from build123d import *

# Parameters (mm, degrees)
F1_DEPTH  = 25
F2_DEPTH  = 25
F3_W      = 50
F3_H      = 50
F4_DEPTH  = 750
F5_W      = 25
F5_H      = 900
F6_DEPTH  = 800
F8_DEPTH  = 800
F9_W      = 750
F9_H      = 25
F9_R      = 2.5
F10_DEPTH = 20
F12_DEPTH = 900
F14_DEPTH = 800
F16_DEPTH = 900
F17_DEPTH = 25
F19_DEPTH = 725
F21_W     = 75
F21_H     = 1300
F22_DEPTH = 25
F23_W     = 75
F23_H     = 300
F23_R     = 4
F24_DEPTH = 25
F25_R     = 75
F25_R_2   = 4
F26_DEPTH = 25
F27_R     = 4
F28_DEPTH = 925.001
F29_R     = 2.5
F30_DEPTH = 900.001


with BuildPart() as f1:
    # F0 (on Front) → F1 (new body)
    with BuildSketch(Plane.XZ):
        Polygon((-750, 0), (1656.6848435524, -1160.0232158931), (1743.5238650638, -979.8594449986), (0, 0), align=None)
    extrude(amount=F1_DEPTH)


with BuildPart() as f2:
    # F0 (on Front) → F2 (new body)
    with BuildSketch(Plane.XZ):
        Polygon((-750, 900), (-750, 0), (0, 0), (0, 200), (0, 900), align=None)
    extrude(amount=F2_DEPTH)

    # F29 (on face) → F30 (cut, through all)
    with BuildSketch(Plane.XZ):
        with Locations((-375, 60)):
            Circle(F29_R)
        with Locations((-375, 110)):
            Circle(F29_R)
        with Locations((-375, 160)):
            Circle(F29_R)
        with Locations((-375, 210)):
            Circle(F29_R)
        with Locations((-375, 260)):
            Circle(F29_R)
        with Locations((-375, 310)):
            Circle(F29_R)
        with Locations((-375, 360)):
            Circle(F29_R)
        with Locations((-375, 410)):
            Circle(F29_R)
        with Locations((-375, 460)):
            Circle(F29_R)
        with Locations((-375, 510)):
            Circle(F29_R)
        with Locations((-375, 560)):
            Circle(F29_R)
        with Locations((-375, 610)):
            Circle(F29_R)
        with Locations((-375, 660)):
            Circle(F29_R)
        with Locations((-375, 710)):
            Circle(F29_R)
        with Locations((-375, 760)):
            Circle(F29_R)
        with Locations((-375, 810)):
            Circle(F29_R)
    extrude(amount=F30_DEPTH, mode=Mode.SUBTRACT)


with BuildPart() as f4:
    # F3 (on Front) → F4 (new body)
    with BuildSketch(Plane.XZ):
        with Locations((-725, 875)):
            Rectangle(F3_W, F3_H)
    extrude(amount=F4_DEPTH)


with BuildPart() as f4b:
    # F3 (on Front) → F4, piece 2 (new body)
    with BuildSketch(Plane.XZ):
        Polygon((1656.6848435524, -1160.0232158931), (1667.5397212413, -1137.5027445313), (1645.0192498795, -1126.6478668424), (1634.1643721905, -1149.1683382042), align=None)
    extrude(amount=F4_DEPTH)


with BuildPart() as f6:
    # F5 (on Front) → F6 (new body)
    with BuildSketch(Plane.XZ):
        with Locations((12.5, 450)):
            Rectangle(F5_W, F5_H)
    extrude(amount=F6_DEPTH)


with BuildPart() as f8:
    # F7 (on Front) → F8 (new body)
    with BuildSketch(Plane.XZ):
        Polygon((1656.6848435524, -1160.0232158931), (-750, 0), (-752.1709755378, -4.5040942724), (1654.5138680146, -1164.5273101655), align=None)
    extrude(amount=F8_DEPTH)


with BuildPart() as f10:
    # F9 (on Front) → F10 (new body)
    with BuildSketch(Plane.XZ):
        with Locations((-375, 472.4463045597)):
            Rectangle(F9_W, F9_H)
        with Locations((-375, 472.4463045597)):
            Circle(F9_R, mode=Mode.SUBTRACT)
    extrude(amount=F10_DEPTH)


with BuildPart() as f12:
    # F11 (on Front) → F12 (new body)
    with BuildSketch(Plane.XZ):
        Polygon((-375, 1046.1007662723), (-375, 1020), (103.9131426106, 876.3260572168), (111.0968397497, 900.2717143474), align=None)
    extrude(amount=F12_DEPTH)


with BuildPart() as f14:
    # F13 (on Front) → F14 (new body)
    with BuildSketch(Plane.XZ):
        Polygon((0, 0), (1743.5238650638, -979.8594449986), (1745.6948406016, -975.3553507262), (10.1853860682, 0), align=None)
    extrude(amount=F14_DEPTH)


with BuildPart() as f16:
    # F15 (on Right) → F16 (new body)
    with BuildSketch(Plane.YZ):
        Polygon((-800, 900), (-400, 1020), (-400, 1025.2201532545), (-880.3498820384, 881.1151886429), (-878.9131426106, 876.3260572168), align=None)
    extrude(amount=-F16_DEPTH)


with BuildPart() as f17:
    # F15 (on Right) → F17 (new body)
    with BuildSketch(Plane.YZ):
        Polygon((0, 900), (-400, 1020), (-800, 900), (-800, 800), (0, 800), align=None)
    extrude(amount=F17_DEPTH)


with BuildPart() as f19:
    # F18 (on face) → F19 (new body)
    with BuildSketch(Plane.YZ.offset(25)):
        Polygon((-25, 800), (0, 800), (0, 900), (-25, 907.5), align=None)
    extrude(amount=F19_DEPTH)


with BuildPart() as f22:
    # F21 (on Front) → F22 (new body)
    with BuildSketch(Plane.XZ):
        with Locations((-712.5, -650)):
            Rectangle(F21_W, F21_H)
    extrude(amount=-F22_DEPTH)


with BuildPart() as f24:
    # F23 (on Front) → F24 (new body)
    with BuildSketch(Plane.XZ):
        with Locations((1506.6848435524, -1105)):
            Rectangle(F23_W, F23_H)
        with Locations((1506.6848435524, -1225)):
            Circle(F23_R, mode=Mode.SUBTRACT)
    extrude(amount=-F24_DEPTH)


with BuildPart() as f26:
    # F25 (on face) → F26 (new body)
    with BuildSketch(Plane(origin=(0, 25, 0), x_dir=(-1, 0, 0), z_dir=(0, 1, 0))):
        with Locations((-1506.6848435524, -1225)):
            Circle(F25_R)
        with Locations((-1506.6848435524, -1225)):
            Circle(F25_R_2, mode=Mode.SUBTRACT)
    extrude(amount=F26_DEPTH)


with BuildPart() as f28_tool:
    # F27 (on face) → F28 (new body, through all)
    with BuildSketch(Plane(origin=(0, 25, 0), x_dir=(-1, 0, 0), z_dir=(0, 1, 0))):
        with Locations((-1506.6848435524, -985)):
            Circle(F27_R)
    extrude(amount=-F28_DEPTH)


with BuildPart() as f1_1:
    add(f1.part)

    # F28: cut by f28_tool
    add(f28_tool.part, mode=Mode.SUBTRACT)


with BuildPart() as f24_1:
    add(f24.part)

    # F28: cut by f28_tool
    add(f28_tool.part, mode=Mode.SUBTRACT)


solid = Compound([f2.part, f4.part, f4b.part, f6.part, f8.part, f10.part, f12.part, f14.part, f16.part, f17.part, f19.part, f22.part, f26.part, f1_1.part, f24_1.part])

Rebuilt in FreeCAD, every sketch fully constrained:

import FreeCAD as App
import Part
import Sketcher
Q = App.Units.Quantity


def add_polygon(sketch, points):
    """Adds a closed chain of lines whose ends are joined by coincident constraints."""
    first, n = sketch.GeometryCount, len(points)
    for a, b in zip(points, points[1:] + points[:1]):
        sketch.addGeometry(Part.LineSegment(App.Vector(*a, 0), App.Vector(*b, 0)), False)
    for i in range(n):
        sketch.addConstraint(Sketcher.Constraint("Coincident", first + i, 2, first + (i + 1) % n, 1))

doc = App.newDocument("Part")
body = doc.addObject("PartDesign::Body", "Body")

# Sketch on XZ plane
sketch1 = body.newObject("Sketcher::SketchObject", "Sketch")
sketch1.AttachmentSupport = (doc.getObject("XZ_Plane"), [""])
sketch1.MapMode = "FlatFace"
add_polygon(sketch1, [(-750, 0), (1657, -1160), (1744, -980), (0, 0)])  # lines 0-3
sketch1.addConstraint(Sketcher.Constraint("Horizontal", 3))
sketch1.addConstraint(Sketcher.Constraint("Coincident", 2, 2, -1, 1))
sketch1.addConstraint(Sketcher.Constraint("Perpendicular", 0, 1))
sketch1.addConstraint(Sketcher.Constraint("DistanceX", 3, 2, 3, 1, Q("750 mm")))
sketch1.addConstraint(Sketcher.Constraint("Distance", 1, Q("200 mm")))
sketch1.addConstraint(Sketcher.Constraint("Distance", 2, Q("2000 mm")))
sketch1.addConstraint(Sketcher.Constraint("Distance", 0, Q("2671.663489 mm")))
pad1 = body.newObject("PartDesign::Pad", "Pad")
pad1.Profile = sketch1
pad1.Length = 25
body2 = doc.addObject("PartDesign::Body", "Body001")

# Sketch on XZ plane
sketch2 = body2.newObject("Sketcher::SketchObject", "Sketch001")
sketch2.AttachmentSupport = (doc.getObject("XZ_Plane001"), [""])
sketch2.MapMode = "FlatFace"
add_polygon(sketch2, [(-750, 900), (-750, 0), (0, 0), (0, 900)])  # lines 0-3
sketch2.addConstraint(Sketcher.Constraint("Vertical", 0))
sketch2.addConstraint(Sketcher.Constraint("Horizontal", 1))
sketch2.addConstraint(Sketcher.Constraint("Vertical", 2))
sketch2.addConstraint(Sketcher.Constraint("Horizontal", 3))
sketch2.addConstraint(Sketcher.Constraint("Coincident", 1, 2, -1, 1))
sketch2.addConstraint(Sketcher.Constraint("DistanceX", 1, 1, 1, 2, Q("750 mm")))
sketch2.addConstraint(Sketcher.Constraint("DistanceY", 0, 2, 0, 1, Q("900 mm")))
pad2 = body2.newObject("PartDesign::Pad", "Pad001")
pad2.Profile = sketch2
pad2.Length = 25

# Sketch on XZ plane
sketch3 = body2.newObject("Sketcher::SketchObject", "Sketch002")
sketch3.AttachmentSupport = (doc.getObject("XZ_Plane001"), [""])
sketch3.MapMode = "FlatFace"
sketch3.addGeometry(Part.Circle(App.Vector(-375, 60, 0), App.Vector(0, 0, 1), 2.5), False)
sketch3.addGeometry(Part.Circle(App.Vector(-375, 110, 0), App.Vector(0, 0, 1), 2.5), False)
sketch3.addGeometry(Part.Circle(App.Vector(-375, 160, 0), App.Vector(0, 0, 1), 2.5), False)
sketch3.addGeometry(Part.Circle(App.Vector(-375, 210, 0), App.Vector(0, 0, 1), 2.5), False)
sketch3.addGeometry(Part.Circle(App.Vector(-375, 260, 0), App.Vector(0, 0, 1), 2.5), False)
sketch3.addGeometry(Part.Circle(App.Vector(-375, 310, 0), App.Vector(0, 0, 1), 2.5), False)
sketch3.addGeometry(Part.Circle(App.Vector(-375, 360, 0), App.Vector(0, 0, 1), 2.5), False)
sketch3.addGeometry(Part.Circle(App.Vector(-375, 410, 0), App.Vector(0, 0, 1), 2.5), False)
sketch3.addGeometry(Part.Circle(App.Vector(-375, 460, 0), App.Vector(0, 0, 1), 2.5), False)
sketch3.addGeometry(Part.Circle(App.Vector(-375, 510, 0), App.Vector(0, 0, 1), 2.5), False)
sketch3.addGeometry(Part.Circle(App.Vector(-375, 560, 0), App.Vector(0, 0, 1), 2.5), False)
sketch3.addGeometry(Part.Circle(App.Vector(-375, 610, 0), App.Vector(0, 0, 1), 2.5), False)
sketch3.addGeometry(Part.Circle(App.Vector(-375, 660, 0), App.Vector(0, 0, 1), 2.5), False)
sketch3.addGeometry(Part.Circle(App.Vector(-375, 710, 0), App.Vector(0, 0, 1), 2.5), False)
sketch3.addGeometry(Part.Circle(App.Vector(-375, 760, 0), App.Vector(0, 0, 1), 2.5), False)
sketch3.addGeometry(Part.Circle(App.Vector(-375, 810, 0), App.Vector(0, 0, 1), 2.5), False)
sketch3.addConstraint(Sketcher.Constraint("Equal", 0, 1))
sketch3.addConstraint(Sketcher.Constraint("Equal", 1, 2))
sketch3.addConstraint(Sketcher.Constraint("Equal", 2, 3))
sketch3.addConstraint(Sketcher.Constraint("Equal", 3, 4))
sketch3.addConstraint(Sketcher.Constraint("Equal", 4, 5))
sketch3.addConstraint(Sketcher.Constraint("Equal", 5, 6))
sketch3.addConstraint(Sketcher.Constraint("Equal", 6, 7))
sketch3.addConstraint(Sketcher.Constraint("Equal", 7, 8))
sketch3.addConstraint(Sketcher.Constraint("Equal", 8, 9))
sketch3.addConstraint(Sketcher.Constraint("Equal", 9, 10))
sketch3.addConstraint(Sketcher.Constraint("Equal", 10, 11))
sketch3.addConstraint(Sketcher.Constraint("Equal", 11, 12))
sketch3.addConstraint(Sketcher.Constraint("Equal", 12, 13))
sketch3.addConstraint(Sketcher.Constraint("Equal", 13, 14))
sketch3.addConstraint(Sketcher.Constraint("Equal", 14, 15))
sketch3.addConstraint(Sketcher.Constraint("Vertical", 0, 3, 1, 3))
sketch3.addConstraint(Sketcher.Constraint("Vertical", 1, 3, 2, 3))
sketch3.addConstraint(Sketcher.Constraint("Vertical", 2, 3, 3, 3))
sketch3.addConstraint(Sketcher.Constraint("Vertical", 3, 3, 4, 3))
sketch3.addConstraint(Sketcher.Constraint("Vertical", 4, 3, 5, 3))
sketch3.addConstraint(Sketcher.Constraint("Vertical", 5, 3, 6, 3))
sketch3.addConstraint(Sketcher.Constraint("Vertical", 6, 3, 7, 3))
sketch3.addConstraint(Sketcher.Constraint("Vertical", 7, 3, 8, 3))
sketch3.addConstraint(Sketcher.Constraint("Vertical", 8, 3, 9, 3))
sketch3.addConstraint(Sketcher.Constraint("Vertical", 9, 3, 10, 3))
sketch3.addConstraint(Sketcher.Constraint("Vertical", 10, 3, 11, 3))
sketch3.addConstraint(Sketcher.Constraint("Vertical", 11, 3, 12, 3))
sketch3.addConstraint(Sketcher.Constraint("Vertical", 12, 3, 13, 3))
sketch3.addConstraint(Sketcher.Constraint("Vertical", 13, 3, 14, 3))
sketch3.addConstraint(Sketcher.Constraint("Vertical", 14, 3, 15, 3))
sketch3.addConstraint(Sketcher.Constraint("Diameter", 0, Q("5 mm")))
sketch3.addConstraint(Sketcher.Constraint("DistanceX", 0, 3, -1, 1, Q("375 mm")))
sketch3.addConstraint(Sketcher.Constraint("DistanceY", -1, 1, 0, 3, Q("60 mm")))
sketch3.addConstraint(Sketcher.Constraint("DistanceY", -1, 1, 1, 3, Q("110 mm")))
sketch3.addConstraint(Sketcher.Constraint("DistanceY", -1, 1, 2, 3, Q("160 mm")))
sketch3.addConstraint(Sketcher.Constraint("DistanceY", -1, 1, 3, 3, Q("210 mm")))
sketch3.addConstraint(Sketcher.Constraint("DistanceY", -1, 1, 4, 3, Q("260 mm")))
sketch3.addConstraint(Sketcher.Constraint("DistanceY", -1, 1, 5, 3, Q("310 mm")))
sketch3.addConstraint(Sketcher.Constraint("DistanceY", -1, 1, 6, 3, Q("360 mm")))
sketch3.addConstraint(Sketcher.Constraint("DistanceY", -1, 1, 7, 3, Q("410 mm")))
sketch3.addConstraint(Sketcher.Constraint("DistanceY", -1, 1, 8, 3, Q("460 mm")))
sketch3.addConstraint(Sketcher.Constraint("DistanceY", -1, 1, 9, 3, Q("510 mm")))
sketch3.addConstraint(Sketcher.Constraint("DistanceY", -1, 1, 10, 3, Q("560 mm")))
sketch3.addConstraint(Sketcher.Constraint("DistanceY", -1, 1, 11, 3, Q("610 mm")))
sketch3.addConstraint(Sketcher.Constraint("DistanceY", -1, 1, 12, 3, Q("660 mm")))
sketch3.addConstraint(Sketcher.Constraint("DistanceY", -1, 1, 13, 3, Q("710 mm")))
sketch3.addConstraint(Sketcher.Constraint("DistanceY", -1, 1, 14, 3, Q("760 mm")))
sketch3.addConstraint(Sketcher.Constraint("DistanceY", -1, 1, 15, 3, Q("810 mm")))
pocket1 = body2.newObject("PartDesign::Pocket", "Pocket")
pocket1.Profile = sketch3
pocket1.Type = "ThroughAll"
pocket1.Reversed = True
body3 = doc.addObject("PartDesign::Body", "Body002")

# Sketch on XZ plane
sketch4 = body3.newObject("Sketcher::SketchObject", "Sketch003")
sketch4.AttachmentSupport = (doc.getObject("XZ_Plane002"), [""])
sketch4.MapMode = "FlatFace"
add_polygon(sketch4, [(-750, 900), (-750, 850), (-700, 850), (-700, 900)])  # lines 0-3
sketch4.addConstraint(Sketcher.Constraint("Vertical", 0))
sketch4.addConstraint(Sketcher.Constraint("Horizontal", 1))
sketch4.addConstraint(Sketcher.Constraint("Vertical", 2))
sketch4.addConstraint(Sketcher.Constraint("Horizontal", 3))
sketch4.addConstraint(Sketcher.Constraint("Equal", 3, 0))
sketch4.addConstraint(Sketcher.Constraint("DistanceX", 1, 1, 1, 2, Q("50 mm")))
sketch4.addConstraint(Sketcher.Constraint("DistanceX", 0, 2, -1, 1, Q("750 mm")))
sketch4.addConstraint(Sketcher.Constraint("DistanceY", -1, 1, 0, 2, Q("850 mm")))
pad3 = body3.newObject("PartDesign::Pad", "Pad002")
pad3.Profile = sketch4
pad3.Length = 750
body4 = doc.addObject("PartDesign::Body", "Body003")

# Sketch on XZ plane
sketch5 = body4.newObject("Sketcher::SketchObject", "Sketch004")
sketch5.AttachmentSupport = (doc.getObject("XZ_Plane003"), [""])
sketch5.MapMode = "FlatFace"
add_polygon(sketch5, [(1657, -1160), (1668, -1138), (1645, -1127), (1634, -1149)])  # lines 0-3
sketch5.addConstraint(Sketcher.Constraint("Perpendicular", 0, 1))
sketch5.addConstraint(Sketcher.Constraint("Perpendicular", 1, 2))
sketch5.addConstraint(Sketcher.Constraint("Perpendicular", 2, 3))
sketch5.addConstraint(Sketcher.Constraint("Equal", 0, 1))
sketch5.addConstraint(Sketcher.Constraint("Distance", 0, Q("25 mm")))
sketch5.addConstraint(Sketcher.Constraint("DistanceX", -1, 1, 0, 2, Q("1667.539721 mm")))
sketch5.addConstraint(Sketcher.Constraint("DistanceX", -1, 1, 1, 2, Q("1645.01925 mm")))
sketch5.addConstraint(Sketcher.Constraint("DistanceY", 2, 2, -1, 1, Q("1149.168338 mm")))
pad4 = body4.newObject("PartDesign::Pad", "Pad003")
pad4.Profile = sketch5
pad4.Length = 750
body5 = doc.addObject("PartDesign::Body", "Body004")

# Sketch on XZ plane
sketch6 = body5.newObject("Sketcher::SketchObject", "Sketch005")
sketch6.AttachmentSupport = (doc.getObject("XZ_Plane004"), [""])
sketch6.MapMode = "FlatFace"
add_polygon(sketch6, [(0, 900), (0, 0), (25, 0), (25, 900)])  # lines 0-3
sketch6.addConstraint(Sketcher.Constraint("Vertical", 0))
sketch6.addConstraint(Sketcher.Constraint("Horizontal", 1))
sketch6.addConstraint(Sketcher.Constraint("Vertical", 2))
sketch6.addConstraint(Sketcher.Constraint("Horizontal", 3))
sketch6.addConstraint(Sketcher.Constraint("Coincident", 0, 2, -1, 1))
sketch6.addConstraint(Sketcher.Constraint("DistanceX", 1, 1, 1, 2, Q("25 mm")))
sketch6.addConstraint(Sketcher.Constraint("DistanceY", 0, 2, 0, 1, Q("900 mm")))
pad5 = body5.newObject("PartDesign::Pad", "Pad004")
pad5.Profile = sketch6
pad5.Length = 800
body6 = doc.addObject("PartDesign::Body", "Body005")

# Sketch on XZ plane
sketch7 = body6.newObject("Sketcher::SketchObject", "Sketch006")
sketch7.AttachmentSupport = (doc.getObject("XZ_Plane005"), [""])
sketch7.MapMode = "FlatFace"
add_polygon(sketch7, [(1656.7, -1160), (-750, 0), (-752.2, -4.5), (1654.5, -1164.5)])  # lines 0-3
sketch7.addConstraint(Sketcher.Constraint("PointOnObject", 0, 2, -1))
sketch7.addConstraint(Sketcher.Constraint("Perpendicular", 0, 1))
sketch7.addConstraint(Sketcher.Constraint("Parallel", 0, 2))
sketch7.addConstraint(Sketcher.Constraint("Perpendicular", 2, 3))
sketch7.addConstraint(Sketcher.Constraint("Distance", 1, Q("5 mm")))
sketch7.addConstraint(Sketcher.Constraint("DistanceX", 0, 2, -1, 1, Q("750 mm")))
sketch7.addConstraint(Sketcher.Constraint("Distance", 0, Q("2671.663489 mm")))
sketch7.addConstraint(Sketcher.Constraint("DistanceX", -1, 1, 2, 2, Q("1654.513868 mm")))
pad6 = body6.newObject("PartDesign::Pad", "Pad005")
pad6.Profile = sketch7
pad6.Length = 800
body7 = doc.addObject("PartDesign::Body", "Body006")

# Sketch on XZ plane
sketch8 = body7.newObject("Sketcher::SketchObject", "Sketch007")
sketch8.AttachmentSupport = (doc.getObject("XZ_Plane006"), [""])
sketch8.MapMode = "FlatFace"
add_polygon(sketch8, [(-750, 484.9), (-750, 459.9), (0, 459.9), (0, 484.9)])  # lines 0-3
sketch8.addGeometry(Part.Circle(App.Vector(-375, 472.4, 0), App.Vector(0, 0, 1), 2.5), False)  # 4
sketch8.addConstraint(Sketcher.Constraint("Vertical", 0))
sketch8.addConstraint(Sketcher.Constraint("Horizontal", 1))
sketch8.addConstraint(Sketcher.Constraint("Vertical", 2))
sketch8.addConstraint(Sketcher.Constraint("Horizontal", 3))
sketch8.addConstraint(Sketcher.Constraint("PointOnObject", 1, 2, -2))
sketch8.addConstraint(Sketcher.Constraint("Diameter", 4, Q("5 mm")))
sketch8.addConstraint(Sketcher.Constraint("DistanceX", 1, 1, 1, 2, Q("750 mm")))
sketch8.addConstraint(Sketcher.Constraint("DistanceY", 0, 2, 0, 1, Q("25 mm")))
sketch8.addConstraint(Sketcher.Constraint("DistanceX", 4, 3, -1, 1, Q("375 mm")))
sketch8.addConstraint(Sketcher.Constraint("DistanceY", 0, 2, 4, 3, Q("12.5 mm")))
sketch8.addConstraint(Sketcher.Constraint("DistanceY", -1, 1, 4, 3, Q("472.446305 mm")))
pad7 = body7.newObject("PartDesign::Pad", "Pad006")
pad7.Profile = sketch8
pad7.Length = 20
body8 = doc.addObject("PartDesign::Body", "Body007")

# Sketch on XZ plane
sketch9 = body8.newObject("Sketcher::SketchObject", "Sketch008")
sketch9.AttachmentSupport = (doc.getObject("XZ_Plane007"), [""])
sketch9.MapMode = "FlatFace"
add_polygon(sketch9, [(-375, 1046), (-375, 1020), (104, 876), (111, 900)])  # lines 0-3
sketch9.addConstraint(Sketcher.Constraint("Vertical", 0))
sketch9.addConstraint(Sketcher.Constraint("Perpendicular", 1, 2))
sketch9.addConstraint(Sketcher.Constraint("Perpendicular", 2, 3))
sketch9.addConstraint(Sketcher.Constraint("Distance", 1, Q("500 mm")))
sketch9.addConstraint(Sketcher.Constraint("Distance", 2, Q("25 mm")))
sketch9.addConstraint(Sketcher.Constraint("DistanceX", 0, 2, -1, 1, Q("375 mm")))
sketch9.addConstraint(Sketcher.Constraint("DistanceY", -1, 1, 0, 2, Q("1020 mm")))
sketch9.addConstraint(Sketcher.Constraint("Distance", 3, Q("507.5 mm")))
pad8 = body8.newObject("PartDesign::Pad", "Pad007")
pad8.Profile = sketch9
pad8.Length = 900
body9 = doc.addObject("PartDesign::Body", "Body008")

# Sketch on XZ plane
sketch10 = body9.newObject("Sketcher::SketchObject", "Sketch009")
sketch10.AttachmentSupport = (doc.getObject("XZ_Plane008"), [""])
sketch10.MapMode = "FlatFace"
add_polygon(sketch10, [(0, 0), (1744, -980), (1746, -975), (10, 0)])  # lines 0-3
sketch10.addConstraint(Sketcher.Constraint("Horizontal", 3))
sketch10.addConstraint(Sketcher.Constraint("Coincident", 3, 2, -1, 1))
sketch10.addConstraint(Sketcher.Constraint("Parallel", 0, 2))
sketch10.addConstraint(Sketcher.Constraint("Distance", 0, Q("2000 mm")))
sketch10.addConstraint(Sketcher.Constraint("Distance", 1, Q("5 mm")))
sketch10.addConstraint(Sketcher.Constraint("DistanceX", 3, 2, 3, 1, Q("10.185386 mm")))
sketch10.addConstraint(Sketcher.Constraint("DistanceX", -1, 1, 1, 2, Q("1745.694841 mm")))
pad9 = body9.newObject("PartDesign::Pad", "Pad008")
pad9.Profile = sketch10
pad9.Length = 800
body10 = doc.addObject("PartDesign::Body", "Body009")

# Sketch on YZ plane
sketch11 = body10.newObject("Sketcher::SketchObject", "Sketch010")
sketch11.AttachmentSupport = (doc.getObject("YZ_Plane009"), [""])
sketch11.MapMode = "FlatFace"
add_polygon(sketch11, [(-400, 1020), (-400, 1025.2), (-880.3, 881.1), (-878.9, 876.3)])  # lines 0-3
sketch11.addConstraint(Sketcher.Constraint("Vertical", 0))
sketch11.addConstraint(Sketcher.Constraint("Perpendicular", 1, 2))
sketch11.addConstraint(Sketcher.Constraint("Perpendicular", 2, 3))
sketch11.addConstraint(Sketcher.Constraint("Distance", 2, Q("5 mm")))
sketch11.addConstraint(Sketcher.Constraint("Distance", 3, Q("500 mm")))
sketch11.addConstraint(Sketcher.Constraint("DistanceX", 0, 2, -1, 1, Q("400 mm")))
sketch11.addConstraint(Sketcher.Constraint("DistanceY", -1, 1, 3, 2, Q("1020 mm")))
sketch11.addConstraint(Sketcher.Constraint("Distance", 1, Q("501.5 mm")))
pad10 = body10.newObject("PartDesign::Pad", "Pad009")
pad10.Profile = sketch11
pad10.Length = 900
pad10.Reversed = True
body11 = doc.addObject("PartDesign::Body", "Body010")

# Sketch on YZ plane
sketch12 = body11.newObject("Sketcher::SketchObject", "Sketch011")
sketch12.AttachmentSupport = (doc.getObject("YZ_Plane010"), [""])
sketch12.MapMode = "FlatFace"
add_polygon(sketch12, [(0, 900), (-400, 1020), (-800, 900), (-800, 800), (0, 800)])  # lines 0-4
sketch12.addConstraint(Sketcher.Constraint("Vertical", 2))
sketch12.addConstraint(Sketcher.Constraint("Horizontal", 3))
sketch12.addConstraint(Sketcher.Constraint("Vertical", 4))
sketch12.addConstraint(Sketcher.Constraint("PointOnObject", 3, 2, -2))
sketch12.addConstraint(Sketcher.Constraint("Horizontal", 1, 2, 4, 2))
sketch12.addConstraint(Sketcher.Constraint("Equal", 0, 1))
sketch12.addConstraint(Sketcher.Constraint("DistanceX", 3, 1, 3, 2, Q("800 mm")))
sketch12.addConstraint(Sketcher.Constraint("DistanceY", 2, 2, 2, 1, Q("100 mm")))
sketch12.addConstraint(Sketcher.Constraint("DistanceY", -1, 1, 0, 2, Q("1020 mm")))
sketch12.addConstraint(Sketcher.Constraint("DistanceY", -1, 1, 1, 2, Q("900 mm")))
pad11 = body11.newObject("PartDesign::Pad", "Pad010")
pad11.Profile = sketch12
pad11.Length = 25
body12 = doc.addObject("PartDesign::Body", "Body011")

# Sketch on YZ plane
sketch13 = body12.newObject("Sketcher::SketchObject", "Sketch012")
sketch13.AttachmentSupport = (doc.getObject("YZ_Plane011"), [""])
sketch13.MapMode = "FlatFace"
sketch13.AttachmentOffset = App.Placement(App.Vector(0, 0, 25), App.Rotation())
add_polygon(sketch13, [(-25, 800), (0, 800), (0, 900), (-25, 908)])  # lines 0-3
sketch13.addConstraint(Sketcher.Constraint("Horizontal", 0))
sketch13.addConstraint(Sketcher.Constraint("Vertical", 1))
sketch13.addConstraint(Sketcher.Constraint("Vertical", 3))
sketch13.addConstraint(Sketcher.Constraint("PointOnObject", 0, 2, -2))
sketch13.addConstraint(Sketcher.Constraint("DistanceX", 0, 1, 0, 2, Q("25 mm")))
sketch13.addConstraint(Sketcher.Constraint("DistanceY", 1, 1, 1, 2, Q("100 mm")))
sketch13.addConstraint(Sketcher.Constraint("DistanceY", 3, 2, 3, 1, Q("107.5 mm")))
sketch13.addConstraint(Sketcher.Constraint("DistanceY", -1, 1, 0, 2, Q("800 mm")))
pad12 = body12.newObject("PartDesign::Pad", "Pad011")
pad12.Profile = sketch13
pad12.Length = 725
body13 = doc.addObject("PartDesign::Body", "Body012")

# Sketch on XZ plane
sketch14 = body13.newObject("Sketcher::SketchObject", "Sketch013")
sketch14.AttachmentSupport = (doc.getObject("XZ_Plane012"), [""])
sketch14.MapMode = "FlatFace"
add_polygon(sketch14, [(-750, 0), (-750, -1300), (-675, -1300), (-675, 0)])  # lines 0-3
sketch14.addConstraint(Sketcher.Constraint("Vertical", 0))
sketch14.addConstraint(Sketcher.Constraint("Horizontal", 1))
sketch14.addConstraint(Sketcher.Constraint("Vertical", 2))
sketch14.addConstraint(Sketcher.Constraint("Horizontal", 3))
sketch14.addConstraint(Sketcher.Constraint("PointOnObject", 2, 2, -1))
sketch14.addConstraint(Sketcher.Constraint("DistanceX", 1, 1, 1, 2, Q("75 mm")))
sketch14.addConstraint(Sketcher.Constraint("DistanceY", 0, 2, 0, 1, Q("1300 mm")))
sketch14.addConstraint(Sketcher.Constraint("DistanceX", 0, 2, -1, 1, Q("750 mm")))
pad13 = body13.newObject("PartDesign::Pad", "Pad012")
pad13.Profile = sketch14
pad13.Length = 25
pad13.Reversed = True
body14 = doc.addObject("PartDesign::Body", "Body013")

# Sketch on XZ plane
sketch15 = body14.newObject("Sketcher::SketchObject", "Sketch014")
sketch15.AttachmentSupport = (doc.getObject("XZ_Plane013"), [""])
sketch15.MapMode = "FlatFace"
add_polygon(sketch15, [(1469.2, -955), (1469.2, -1255), (1544.2, -1255), (1544.2, -955)])  # lines 0-3
sketch15.addGeometry(Part.Circle(App.Vector(1506.7, -1225, 0), App.Vector(0, 0, 1), 4), False)  # 4
sketch15.addConstraint(Sketcher.Constraint("Vertical", 0))
sketch15.addConstraint(Sketcher.Constraint("Horizontal", 1))
sketch15.addConstraint(Sketcher.Constraint("Vertical", 2))
sketch15.addConstraint(Sketcher.Constraint("Horizontal", 3))
sketch15.addConstraint(Sketcher.Constraint("Diameter", 4, Q("8 mm")))
sketch15.addConstraint(Sketcher.Constraint("DistanceX", 1, 1, 1, 2, Q("75 mm")))
sketch15.addConstraint(Sketcher.Constraint("DistanceY", 0, 2, 0, 1, Q("300 mm")))
sketch15.addConstraint(Sketcher.Constraint("DistanceY", 4, 3, -1, 1, Q("1225 mm")))
sketch15.addConstraint(Sketcher.Constraint("DistanceY", 0, 2, -1, 1, Q("1255 mm")))
sketch15.addConstraint(Sketcher.Constraint("DistanceX", 0, 2, 4, 3, Q("37.5 mm")))
sketch15.addConstraint(Sketcher.Constraint("DistanceX", -1, 1, 4, 3, Q("1506.684844 mm")))
pad14 = body14.newObject("PartDesign::Pad", "Pad013")
pad14.Profile = sketch15
pad14.Length = 25
pad14.Reversed = True
body15 = doc.addObject("PartDesign::Body", "Body014")

# Sketch on XZ plane
sketch16 = body15.newObject("Sketcher::SketchObject", "Sketch015")
sketch16.AttachmentSupport = (doc.getObject("XZ_Plane014"), [""])
sketch16.MapMode = "FlatFace"
sketch16.AttachmentOffset = App.Placement(App.Vector(0, 0, -25), App.Rotation())
sketch16.addGeometry(Part.Circle(App.Vector(1506.7, -1225, 0), App.Vector(0, 0, 1), 75), False)
sketch16.addGeometry(Part.Circle(App.Vector(1506.7, -1225, 0), App.Vector(0, 0, 1), 4), False)
sketch16.addConstraint(Sketcher.Constraint("Coincident", 1, 3, 0, 3))
sketch16.addConstraint(Sketcher.Constraint("Diameter", 0, Q("150 mm")))
sketch16.addConstraint(Sketcher.Constraint("Diameter", 1, Q("8 mm")))
sketch16.addConstraint(Sketcher.Constraint("DistanceY", 0, 3, -1, 1, Q("1225 mm")))
sketch16.addConstraint(Sketcher.Constraint("DistanceX", -1, 1, 0, 3, Q("1506.684844 mm")))
pad15 = body15.newObject("PartDesign::Pad", "Pad014")
pad15.Profile = sketch16
pad15.Length = 25
pad15.Reversed = True
body16 = doc.addObject("PartDesign::Body", "Body015")

# Sketch on XZ plane
sketch17 = body16.newObject("Sketcher::SketchObject", "Sketch016")
sketch17.AttachmentSupport = (doc.getObject("XZ_Plane015"), [""])
sketch17.MapMode = "FlatFace"
sketch17.AttachmentOffset = App.Placement(App.Vector(0, 0, -25), App.Rotation())
sketch17.addGeometry(Part.Circle(App.Vector(1506.7, -985, 0), App.Vector(0, 0, 1), 4), False)
sketch17.addConstraint(Sketcher.Constraint("Diameter", 0, Q("8 mm")))
sketch17.addConstraint(Sketcher.Constraint("DistanceY", 0, 3, -1, 1, Q("985 mm")))
sketch17.addConstraint(Sketcher.Constraint("DistanceX", -1, 1, 0, 3, Q("1506.684844 mm")))
pad16 = body16.newObject("PartDesign::Pad", "Pad015")
pad16.Profile = sketch17
pad16.Length = 925.001
doc.recompute()

body17 = doc.addObject("PartDesign::Body", "Body016")
body17.BaseFeature = body16
boolean = body.newObject("PartDesign::Boolean", "Boolean")
boolean.Type = "Cut"
boolean.addObjects([body17])
doc.recompute()

boolean2 = body14.newObject("PartDesign::Boolean", "Boolean001")
boolean2.Type = "Cut"
boolean2.addObjects([body16])

doc.recompute()
